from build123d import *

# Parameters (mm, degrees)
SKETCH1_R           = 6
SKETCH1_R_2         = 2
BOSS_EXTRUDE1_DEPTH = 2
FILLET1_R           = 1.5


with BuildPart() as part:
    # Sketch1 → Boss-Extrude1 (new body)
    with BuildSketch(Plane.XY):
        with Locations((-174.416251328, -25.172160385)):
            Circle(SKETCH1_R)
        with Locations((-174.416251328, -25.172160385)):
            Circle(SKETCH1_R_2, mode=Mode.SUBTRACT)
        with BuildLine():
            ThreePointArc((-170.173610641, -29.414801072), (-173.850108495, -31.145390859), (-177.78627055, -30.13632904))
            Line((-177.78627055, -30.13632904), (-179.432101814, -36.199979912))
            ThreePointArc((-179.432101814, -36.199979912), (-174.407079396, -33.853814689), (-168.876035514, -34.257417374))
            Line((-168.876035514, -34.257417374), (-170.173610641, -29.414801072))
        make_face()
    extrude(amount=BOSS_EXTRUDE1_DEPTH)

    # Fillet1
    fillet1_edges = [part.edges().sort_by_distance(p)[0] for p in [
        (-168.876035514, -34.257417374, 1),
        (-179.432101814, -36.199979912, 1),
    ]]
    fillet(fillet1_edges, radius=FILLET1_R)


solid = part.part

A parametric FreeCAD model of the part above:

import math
import FreeCAD as App
import Part
import Sketcher
from FreeCAD import Vector
Q = App.Units.Quantity


def edges_at(feature, points):
    """Names of the edges that pass closest to the given points."""
    edges = feature.Shape.Edges
    near = lambda p: min(range(len(edges)), key=lambda i: edges[i].distToShape(Part.Vertex(*p))[0])
    return sorted({f"Edge{near(p) + 1}" for p in points})

doc = App.newDocument("Part")
body = doc.addObject("PartDesign::Body", "Body")

# Sketch on XY plane
sketch1 = body.newObject("Sketcher::SketchObject", "Sketch")
sketch1.AttachmentSupport = (doc.getObject("XY_Plane"), [""])
sketch1.MapMode = "FlatFace"
sketch1.addGeometry([
    Part.LineSegment(Vector(-177.786271, -30.136329, 0), Vector(-179.432102, -36.19998, 0)),  # 0
    Part.ArcOfCircle(Part.Circle(Vector(-172.416251, -44.67216, 0), Vector(0, 0, 1), 11), math.radians(71.225896), math.radians(129.628307)),  # 1
    Part.LineSegment(Vector(-168.876036, -34.257417, 0), Vector(-170.173611, -29.414801, 0)),  # 2
    Part.ArcOfCircle(Part.Circle(Vector(-174.416251, -25.17216, 0), Vector(0, 0, 1), 6), math.radians(-45), math.radians(235.828641)),  # 3
    Part.Circle(Vector(-174.416251, -25.17216, 0), Vector(0, 0, 1), 2),  # 4
], False)
sketch1.addConstraint([
    Sketcher.Constraint("Coincident", 0, 2, 1, 2),
    Sketcher.Constraint("Coincident", 1, 1, 2, 1),
    Sketcher.Constraint("Coincident", 2, 2, 3, 1),
    Sketcher.Constraint("Coincident", 3, 2, 0, 1),
    Sketcher.Constraint("Coincident", 4, 3, 3, 3),
    Sketcher.Constraint("Diameter", 4, 4.0),
    Sketcher.Constraint("Radius", 1, 11.0),
    Sketcher.Constraint("Radius", 3, 6.0),
    Sketcher.Constraint("Angle", 2, Q("105 deg")),
    Sketcher.Constraint("DistanceX", 3, 3, 1, 3, 2.0),
    Sketcher.Constraint("DistanceY", 1, 3, 3, 3, 19.5),
    Sketcher.Constraint("DistanceX", 0, 2, -1, 1, 179.432102),
    Sketcher.Constraint("DistanceY", 2, 2, -1, 1, 29.414801),
    Sketcher.Constraint("DistanceX", 1, 3, -1, 1, 172.416251),
    Sketcher.Constraint("DistanceY", 1, 3, -1, 1, 44.67216),
    Sketcher.Constraint("DistanceX", 3, 2, -1, 1, 177.786271),
])
pad1 = body.newObject("PartDesign::Pad", "Pad")
pad1.Profile = sketch1
pad1.Length = 2
doc.recompute()

fillet = body.newObject("PartDesign::Fillet", "Fillet")
fillet.Base = (pad1, edges_at(pad1, [(-168.876, -34.257, 1), (-179.432, -36.2, 1)]))
fillet.Radius = 1.5

doc.recompute()
